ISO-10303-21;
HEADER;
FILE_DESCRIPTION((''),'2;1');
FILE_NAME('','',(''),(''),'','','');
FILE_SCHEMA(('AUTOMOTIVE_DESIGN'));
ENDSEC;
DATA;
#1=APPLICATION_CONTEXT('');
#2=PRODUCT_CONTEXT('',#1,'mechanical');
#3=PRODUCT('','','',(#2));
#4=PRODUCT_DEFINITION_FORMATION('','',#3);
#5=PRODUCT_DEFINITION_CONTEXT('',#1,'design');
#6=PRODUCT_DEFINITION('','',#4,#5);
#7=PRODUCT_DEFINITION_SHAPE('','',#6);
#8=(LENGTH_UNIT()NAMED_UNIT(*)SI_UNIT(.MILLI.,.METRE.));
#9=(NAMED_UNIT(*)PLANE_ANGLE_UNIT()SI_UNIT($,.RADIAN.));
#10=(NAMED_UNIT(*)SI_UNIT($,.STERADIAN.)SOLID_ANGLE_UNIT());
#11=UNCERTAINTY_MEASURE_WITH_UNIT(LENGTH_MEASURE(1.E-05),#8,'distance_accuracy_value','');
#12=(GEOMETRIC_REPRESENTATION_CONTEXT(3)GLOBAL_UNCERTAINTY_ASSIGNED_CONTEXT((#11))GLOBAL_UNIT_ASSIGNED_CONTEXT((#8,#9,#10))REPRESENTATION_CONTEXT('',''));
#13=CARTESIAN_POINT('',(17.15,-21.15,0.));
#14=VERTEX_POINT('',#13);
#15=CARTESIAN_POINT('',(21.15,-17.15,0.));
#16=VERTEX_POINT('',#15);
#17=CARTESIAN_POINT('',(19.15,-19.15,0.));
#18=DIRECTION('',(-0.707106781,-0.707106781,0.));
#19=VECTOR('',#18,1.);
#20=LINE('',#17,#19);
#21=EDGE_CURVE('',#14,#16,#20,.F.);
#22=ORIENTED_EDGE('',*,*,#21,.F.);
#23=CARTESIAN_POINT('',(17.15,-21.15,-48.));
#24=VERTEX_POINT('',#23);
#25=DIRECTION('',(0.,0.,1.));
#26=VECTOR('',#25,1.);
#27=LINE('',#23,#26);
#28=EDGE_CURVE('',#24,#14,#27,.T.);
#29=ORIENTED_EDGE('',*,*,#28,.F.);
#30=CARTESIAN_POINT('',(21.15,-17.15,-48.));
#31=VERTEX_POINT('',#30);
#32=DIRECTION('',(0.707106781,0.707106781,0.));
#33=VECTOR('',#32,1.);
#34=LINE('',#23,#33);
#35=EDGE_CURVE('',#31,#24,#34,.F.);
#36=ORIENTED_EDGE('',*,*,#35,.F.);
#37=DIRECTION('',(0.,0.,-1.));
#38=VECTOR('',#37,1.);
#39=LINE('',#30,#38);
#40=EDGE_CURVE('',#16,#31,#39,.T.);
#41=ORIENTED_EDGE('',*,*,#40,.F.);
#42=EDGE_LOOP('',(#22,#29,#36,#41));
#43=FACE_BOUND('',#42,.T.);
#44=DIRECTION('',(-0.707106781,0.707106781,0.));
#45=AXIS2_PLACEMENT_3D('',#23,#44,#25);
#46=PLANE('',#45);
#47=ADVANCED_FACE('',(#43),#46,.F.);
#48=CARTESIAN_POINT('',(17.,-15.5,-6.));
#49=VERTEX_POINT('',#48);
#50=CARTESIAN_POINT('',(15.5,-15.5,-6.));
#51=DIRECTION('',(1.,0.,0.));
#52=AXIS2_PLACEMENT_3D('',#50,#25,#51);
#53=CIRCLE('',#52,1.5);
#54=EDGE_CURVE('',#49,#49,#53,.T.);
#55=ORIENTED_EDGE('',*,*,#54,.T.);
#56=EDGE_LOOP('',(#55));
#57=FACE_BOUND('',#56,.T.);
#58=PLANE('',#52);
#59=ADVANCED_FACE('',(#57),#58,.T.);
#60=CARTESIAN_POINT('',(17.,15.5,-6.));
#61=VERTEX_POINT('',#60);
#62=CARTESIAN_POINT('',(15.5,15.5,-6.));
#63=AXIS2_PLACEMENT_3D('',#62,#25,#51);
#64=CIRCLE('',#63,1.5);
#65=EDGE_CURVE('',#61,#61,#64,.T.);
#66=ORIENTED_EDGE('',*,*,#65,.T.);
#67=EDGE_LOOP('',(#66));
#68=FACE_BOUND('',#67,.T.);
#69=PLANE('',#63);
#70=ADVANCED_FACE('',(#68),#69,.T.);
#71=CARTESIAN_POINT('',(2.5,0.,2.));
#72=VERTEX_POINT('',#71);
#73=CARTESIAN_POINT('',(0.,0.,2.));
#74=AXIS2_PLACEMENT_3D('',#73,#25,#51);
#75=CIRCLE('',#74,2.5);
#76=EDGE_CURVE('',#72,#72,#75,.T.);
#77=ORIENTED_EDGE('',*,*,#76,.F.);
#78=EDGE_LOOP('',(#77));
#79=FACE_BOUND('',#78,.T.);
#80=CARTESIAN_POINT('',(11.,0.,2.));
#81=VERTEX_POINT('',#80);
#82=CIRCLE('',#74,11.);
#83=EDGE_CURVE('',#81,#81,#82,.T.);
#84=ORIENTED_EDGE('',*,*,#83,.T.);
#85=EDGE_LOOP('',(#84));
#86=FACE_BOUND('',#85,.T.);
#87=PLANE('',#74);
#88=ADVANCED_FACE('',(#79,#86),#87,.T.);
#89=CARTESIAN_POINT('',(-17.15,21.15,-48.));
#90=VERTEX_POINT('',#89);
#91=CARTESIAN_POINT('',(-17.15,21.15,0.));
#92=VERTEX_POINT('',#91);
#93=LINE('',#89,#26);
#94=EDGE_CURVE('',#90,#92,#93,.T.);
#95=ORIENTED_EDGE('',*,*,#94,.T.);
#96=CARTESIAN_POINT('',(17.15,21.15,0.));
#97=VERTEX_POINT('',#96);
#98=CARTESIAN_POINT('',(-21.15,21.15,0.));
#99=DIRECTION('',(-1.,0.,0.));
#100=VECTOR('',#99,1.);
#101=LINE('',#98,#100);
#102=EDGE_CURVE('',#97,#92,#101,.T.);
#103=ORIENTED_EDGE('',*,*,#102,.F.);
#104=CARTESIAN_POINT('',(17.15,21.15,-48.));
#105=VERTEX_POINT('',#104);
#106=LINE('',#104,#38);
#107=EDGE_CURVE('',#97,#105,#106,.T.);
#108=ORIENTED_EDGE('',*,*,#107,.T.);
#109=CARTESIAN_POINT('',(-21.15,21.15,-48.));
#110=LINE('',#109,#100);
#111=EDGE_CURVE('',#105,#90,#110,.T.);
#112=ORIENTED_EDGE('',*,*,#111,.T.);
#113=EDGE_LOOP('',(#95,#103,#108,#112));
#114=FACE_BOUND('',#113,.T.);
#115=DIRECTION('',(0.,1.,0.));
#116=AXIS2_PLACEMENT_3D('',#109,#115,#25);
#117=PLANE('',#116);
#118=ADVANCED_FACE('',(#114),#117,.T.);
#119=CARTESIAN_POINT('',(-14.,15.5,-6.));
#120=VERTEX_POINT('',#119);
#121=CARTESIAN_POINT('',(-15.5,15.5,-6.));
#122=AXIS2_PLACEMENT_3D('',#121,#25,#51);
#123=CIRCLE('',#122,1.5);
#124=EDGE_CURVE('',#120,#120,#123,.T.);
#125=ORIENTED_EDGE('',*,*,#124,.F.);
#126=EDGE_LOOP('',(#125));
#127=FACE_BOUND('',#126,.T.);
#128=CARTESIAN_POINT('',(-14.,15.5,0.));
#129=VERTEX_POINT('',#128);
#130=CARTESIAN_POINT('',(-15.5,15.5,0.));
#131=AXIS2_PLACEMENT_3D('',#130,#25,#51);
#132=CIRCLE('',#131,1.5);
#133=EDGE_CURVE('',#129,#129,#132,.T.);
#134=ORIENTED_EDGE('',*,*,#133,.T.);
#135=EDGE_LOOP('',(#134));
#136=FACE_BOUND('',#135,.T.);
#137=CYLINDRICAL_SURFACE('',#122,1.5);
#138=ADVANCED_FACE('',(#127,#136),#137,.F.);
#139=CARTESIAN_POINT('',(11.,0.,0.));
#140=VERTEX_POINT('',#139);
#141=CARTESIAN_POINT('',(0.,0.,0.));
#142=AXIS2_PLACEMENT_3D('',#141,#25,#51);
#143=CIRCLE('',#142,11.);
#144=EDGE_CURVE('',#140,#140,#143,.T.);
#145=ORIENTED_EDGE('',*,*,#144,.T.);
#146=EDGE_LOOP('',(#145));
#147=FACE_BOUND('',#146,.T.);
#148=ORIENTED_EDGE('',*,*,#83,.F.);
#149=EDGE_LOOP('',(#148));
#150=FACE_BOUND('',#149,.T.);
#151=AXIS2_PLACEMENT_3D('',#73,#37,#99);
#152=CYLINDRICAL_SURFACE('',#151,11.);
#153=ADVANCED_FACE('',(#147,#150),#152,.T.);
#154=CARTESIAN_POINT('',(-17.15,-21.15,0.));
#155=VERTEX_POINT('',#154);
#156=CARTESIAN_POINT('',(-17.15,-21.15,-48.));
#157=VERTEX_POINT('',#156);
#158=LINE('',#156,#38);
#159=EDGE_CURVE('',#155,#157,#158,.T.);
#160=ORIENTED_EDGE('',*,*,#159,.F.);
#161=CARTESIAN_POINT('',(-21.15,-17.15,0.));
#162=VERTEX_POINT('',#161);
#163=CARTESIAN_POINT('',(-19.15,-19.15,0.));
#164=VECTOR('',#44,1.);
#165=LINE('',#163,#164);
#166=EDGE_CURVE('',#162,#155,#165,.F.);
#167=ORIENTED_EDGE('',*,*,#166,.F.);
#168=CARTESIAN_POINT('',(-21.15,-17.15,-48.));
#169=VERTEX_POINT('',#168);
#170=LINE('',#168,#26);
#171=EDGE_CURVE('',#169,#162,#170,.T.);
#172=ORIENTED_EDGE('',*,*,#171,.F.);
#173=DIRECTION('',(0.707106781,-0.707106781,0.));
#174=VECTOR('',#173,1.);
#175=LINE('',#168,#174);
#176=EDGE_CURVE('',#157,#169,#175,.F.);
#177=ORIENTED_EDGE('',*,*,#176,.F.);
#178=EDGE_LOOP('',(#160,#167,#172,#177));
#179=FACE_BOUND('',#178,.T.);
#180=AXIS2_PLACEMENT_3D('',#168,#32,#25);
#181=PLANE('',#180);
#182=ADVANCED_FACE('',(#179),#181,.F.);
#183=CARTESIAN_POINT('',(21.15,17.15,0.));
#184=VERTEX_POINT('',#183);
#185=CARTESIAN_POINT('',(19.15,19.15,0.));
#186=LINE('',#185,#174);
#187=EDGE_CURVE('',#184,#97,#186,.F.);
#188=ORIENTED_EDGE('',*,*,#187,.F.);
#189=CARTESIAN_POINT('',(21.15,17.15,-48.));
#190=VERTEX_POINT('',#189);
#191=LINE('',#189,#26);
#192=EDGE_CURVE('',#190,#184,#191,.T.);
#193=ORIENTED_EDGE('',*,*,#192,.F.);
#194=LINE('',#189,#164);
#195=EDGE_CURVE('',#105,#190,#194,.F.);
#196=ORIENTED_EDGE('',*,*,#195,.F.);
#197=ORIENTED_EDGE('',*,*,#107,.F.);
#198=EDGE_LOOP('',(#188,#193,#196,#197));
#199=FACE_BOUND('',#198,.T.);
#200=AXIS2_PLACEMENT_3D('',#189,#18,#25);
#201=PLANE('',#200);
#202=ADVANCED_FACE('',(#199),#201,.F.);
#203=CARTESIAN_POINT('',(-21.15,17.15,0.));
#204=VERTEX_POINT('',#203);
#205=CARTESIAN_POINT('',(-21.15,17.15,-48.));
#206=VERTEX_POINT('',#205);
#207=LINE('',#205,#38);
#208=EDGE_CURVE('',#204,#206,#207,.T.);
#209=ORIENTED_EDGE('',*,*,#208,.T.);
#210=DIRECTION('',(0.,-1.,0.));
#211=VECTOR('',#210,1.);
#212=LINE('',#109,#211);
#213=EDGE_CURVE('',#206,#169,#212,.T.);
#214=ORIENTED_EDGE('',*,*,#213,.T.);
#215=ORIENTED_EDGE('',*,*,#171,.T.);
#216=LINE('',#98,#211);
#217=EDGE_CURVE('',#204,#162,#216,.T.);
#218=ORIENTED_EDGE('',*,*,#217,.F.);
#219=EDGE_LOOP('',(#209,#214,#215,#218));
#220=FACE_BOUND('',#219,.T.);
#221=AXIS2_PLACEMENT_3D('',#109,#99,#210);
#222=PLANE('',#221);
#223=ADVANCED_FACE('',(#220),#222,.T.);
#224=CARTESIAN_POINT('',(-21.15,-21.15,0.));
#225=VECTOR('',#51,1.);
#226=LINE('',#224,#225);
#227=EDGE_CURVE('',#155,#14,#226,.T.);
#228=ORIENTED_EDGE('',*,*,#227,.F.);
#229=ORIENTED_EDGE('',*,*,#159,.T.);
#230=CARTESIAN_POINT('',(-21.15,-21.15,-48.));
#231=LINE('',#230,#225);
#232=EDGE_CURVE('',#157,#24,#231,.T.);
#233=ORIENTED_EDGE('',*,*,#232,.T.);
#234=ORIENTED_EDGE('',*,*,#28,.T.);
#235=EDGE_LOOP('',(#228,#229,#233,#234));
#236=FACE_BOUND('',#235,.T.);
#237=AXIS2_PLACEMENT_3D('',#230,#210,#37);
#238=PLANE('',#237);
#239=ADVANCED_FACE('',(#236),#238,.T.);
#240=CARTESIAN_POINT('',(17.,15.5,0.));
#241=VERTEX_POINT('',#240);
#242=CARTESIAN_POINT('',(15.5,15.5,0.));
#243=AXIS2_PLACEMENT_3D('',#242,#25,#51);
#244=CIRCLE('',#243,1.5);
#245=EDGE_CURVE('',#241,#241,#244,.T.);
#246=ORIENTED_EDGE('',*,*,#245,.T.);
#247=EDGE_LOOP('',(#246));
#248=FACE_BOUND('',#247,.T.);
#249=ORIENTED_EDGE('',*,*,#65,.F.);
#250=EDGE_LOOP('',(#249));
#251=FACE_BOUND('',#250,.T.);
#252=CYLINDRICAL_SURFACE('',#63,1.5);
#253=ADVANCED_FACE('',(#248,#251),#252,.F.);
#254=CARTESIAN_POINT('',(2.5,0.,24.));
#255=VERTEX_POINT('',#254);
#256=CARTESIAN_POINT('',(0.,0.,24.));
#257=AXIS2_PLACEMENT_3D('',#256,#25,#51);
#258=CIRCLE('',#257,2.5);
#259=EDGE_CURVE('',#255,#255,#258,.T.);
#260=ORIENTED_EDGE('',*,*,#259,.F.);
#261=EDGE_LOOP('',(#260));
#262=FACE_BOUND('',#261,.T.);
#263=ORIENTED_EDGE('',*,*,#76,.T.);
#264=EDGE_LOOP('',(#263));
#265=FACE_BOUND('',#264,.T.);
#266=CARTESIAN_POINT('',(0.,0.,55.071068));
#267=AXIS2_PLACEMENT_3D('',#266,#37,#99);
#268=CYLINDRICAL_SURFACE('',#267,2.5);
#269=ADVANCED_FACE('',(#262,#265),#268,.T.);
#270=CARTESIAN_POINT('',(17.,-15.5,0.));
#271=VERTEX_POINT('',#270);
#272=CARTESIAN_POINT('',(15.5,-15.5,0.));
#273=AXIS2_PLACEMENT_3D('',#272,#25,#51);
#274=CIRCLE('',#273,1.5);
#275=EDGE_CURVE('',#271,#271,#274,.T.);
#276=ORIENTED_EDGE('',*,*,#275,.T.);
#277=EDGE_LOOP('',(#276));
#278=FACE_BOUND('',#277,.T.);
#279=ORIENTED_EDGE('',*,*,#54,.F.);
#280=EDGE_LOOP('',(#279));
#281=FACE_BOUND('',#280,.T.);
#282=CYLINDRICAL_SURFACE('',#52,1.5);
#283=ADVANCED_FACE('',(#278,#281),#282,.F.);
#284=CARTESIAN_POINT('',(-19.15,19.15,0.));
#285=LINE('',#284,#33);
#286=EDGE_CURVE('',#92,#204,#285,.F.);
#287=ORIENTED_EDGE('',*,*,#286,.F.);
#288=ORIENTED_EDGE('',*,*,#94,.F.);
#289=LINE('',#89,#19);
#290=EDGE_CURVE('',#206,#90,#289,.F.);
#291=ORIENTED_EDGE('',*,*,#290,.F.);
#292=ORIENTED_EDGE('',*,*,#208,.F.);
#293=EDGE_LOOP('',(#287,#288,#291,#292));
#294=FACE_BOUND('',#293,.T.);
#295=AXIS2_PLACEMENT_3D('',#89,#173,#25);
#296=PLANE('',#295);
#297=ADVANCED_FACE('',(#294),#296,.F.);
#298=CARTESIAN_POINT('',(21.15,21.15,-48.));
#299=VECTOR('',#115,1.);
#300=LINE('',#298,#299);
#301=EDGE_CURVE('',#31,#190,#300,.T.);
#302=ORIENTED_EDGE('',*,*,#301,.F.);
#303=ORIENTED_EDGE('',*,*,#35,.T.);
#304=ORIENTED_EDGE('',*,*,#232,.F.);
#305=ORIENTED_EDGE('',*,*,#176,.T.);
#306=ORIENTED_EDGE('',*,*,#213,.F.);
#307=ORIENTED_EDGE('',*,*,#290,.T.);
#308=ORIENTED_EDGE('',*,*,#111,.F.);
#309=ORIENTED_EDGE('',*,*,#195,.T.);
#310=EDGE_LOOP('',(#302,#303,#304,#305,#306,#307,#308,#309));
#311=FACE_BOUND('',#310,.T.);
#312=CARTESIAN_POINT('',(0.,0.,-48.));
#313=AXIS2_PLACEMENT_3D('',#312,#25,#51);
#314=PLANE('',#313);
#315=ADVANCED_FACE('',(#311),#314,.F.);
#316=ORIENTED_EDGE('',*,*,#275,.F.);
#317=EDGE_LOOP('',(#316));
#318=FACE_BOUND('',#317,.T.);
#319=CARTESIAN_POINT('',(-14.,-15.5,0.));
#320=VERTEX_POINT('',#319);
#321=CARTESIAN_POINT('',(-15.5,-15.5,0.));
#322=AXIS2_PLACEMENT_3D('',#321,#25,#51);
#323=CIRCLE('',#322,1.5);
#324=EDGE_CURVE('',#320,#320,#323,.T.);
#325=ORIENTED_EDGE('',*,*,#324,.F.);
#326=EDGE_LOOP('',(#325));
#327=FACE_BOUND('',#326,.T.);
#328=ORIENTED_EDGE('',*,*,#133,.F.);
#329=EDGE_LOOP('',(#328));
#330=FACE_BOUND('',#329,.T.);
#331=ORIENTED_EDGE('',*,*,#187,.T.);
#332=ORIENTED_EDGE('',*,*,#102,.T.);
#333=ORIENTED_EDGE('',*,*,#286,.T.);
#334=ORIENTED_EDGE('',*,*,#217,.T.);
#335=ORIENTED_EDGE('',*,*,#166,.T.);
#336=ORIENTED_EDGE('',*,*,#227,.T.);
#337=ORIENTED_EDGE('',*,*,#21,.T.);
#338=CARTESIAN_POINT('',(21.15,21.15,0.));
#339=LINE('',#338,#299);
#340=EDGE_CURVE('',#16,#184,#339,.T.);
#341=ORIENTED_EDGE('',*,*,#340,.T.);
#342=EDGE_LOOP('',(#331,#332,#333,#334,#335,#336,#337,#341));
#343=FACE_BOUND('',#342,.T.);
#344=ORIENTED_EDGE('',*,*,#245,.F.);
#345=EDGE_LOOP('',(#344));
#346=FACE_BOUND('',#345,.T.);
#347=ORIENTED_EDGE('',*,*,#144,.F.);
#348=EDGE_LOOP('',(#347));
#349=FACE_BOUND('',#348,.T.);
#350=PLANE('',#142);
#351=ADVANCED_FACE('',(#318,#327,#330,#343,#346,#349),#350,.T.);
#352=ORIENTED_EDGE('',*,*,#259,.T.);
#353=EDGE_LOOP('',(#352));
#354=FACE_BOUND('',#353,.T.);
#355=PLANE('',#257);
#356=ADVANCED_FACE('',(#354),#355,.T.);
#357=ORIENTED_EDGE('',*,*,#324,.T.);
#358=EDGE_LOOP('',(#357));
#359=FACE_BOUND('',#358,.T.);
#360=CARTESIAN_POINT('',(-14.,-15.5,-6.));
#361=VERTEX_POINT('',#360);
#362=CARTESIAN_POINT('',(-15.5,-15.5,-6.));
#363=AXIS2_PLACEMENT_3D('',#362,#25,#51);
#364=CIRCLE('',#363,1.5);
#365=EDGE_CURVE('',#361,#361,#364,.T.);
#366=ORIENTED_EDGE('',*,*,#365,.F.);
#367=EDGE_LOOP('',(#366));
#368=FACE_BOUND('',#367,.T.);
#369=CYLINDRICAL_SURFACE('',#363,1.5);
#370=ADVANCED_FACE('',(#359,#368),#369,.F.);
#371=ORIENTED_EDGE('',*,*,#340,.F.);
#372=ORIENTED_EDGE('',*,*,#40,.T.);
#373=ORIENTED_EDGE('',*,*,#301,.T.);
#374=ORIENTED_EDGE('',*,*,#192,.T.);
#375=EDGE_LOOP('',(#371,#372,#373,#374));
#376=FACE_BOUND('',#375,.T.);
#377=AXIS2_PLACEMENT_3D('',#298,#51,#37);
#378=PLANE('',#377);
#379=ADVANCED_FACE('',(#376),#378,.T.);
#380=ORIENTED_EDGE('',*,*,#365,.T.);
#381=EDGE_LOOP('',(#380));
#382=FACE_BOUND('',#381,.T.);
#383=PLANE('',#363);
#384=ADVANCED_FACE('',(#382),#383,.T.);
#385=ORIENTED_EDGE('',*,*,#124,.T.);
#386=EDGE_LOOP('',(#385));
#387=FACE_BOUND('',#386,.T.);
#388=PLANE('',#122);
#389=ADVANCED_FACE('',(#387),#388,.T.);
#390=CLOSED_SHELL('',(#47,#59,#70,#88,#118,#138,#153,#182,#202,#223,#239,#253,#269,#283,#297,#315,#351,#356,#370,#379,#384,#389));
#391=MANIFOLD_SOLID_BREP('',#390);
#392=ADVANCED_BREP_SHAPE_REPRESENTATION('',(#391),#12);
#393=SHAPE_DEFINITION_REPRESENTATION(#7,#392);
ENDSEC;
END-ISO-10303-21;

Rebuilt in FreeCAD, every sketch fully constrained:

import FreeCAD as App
import Part
import Sketcher

V = App.Vector
Q = App.Units.Quantity


def edges_at(feature, points):
    """Names of the edges that pass closest to the given points."""
    edges = feature.Shape.Edges
    near = lambda p: min(range(len(edges)), key=lambda i: edges[i].distToShape(Part.Vertex(*p))[0])
    return sorted({f"Edge{near(p) + 1}" for p in points})

doc = App.newDocument("Part")
body = doc.addObject("PartDesign::Body", "Body")

sketch1 = body.newObject("Sketcher::SketchObject", "Sketch")
sketch1.AttachmentSupport = (doc.getObject("XY_Plane"), [""])
sketch1.MapMode = "FlatFace"
sketch1.addGeometry(Part.LineSegment(V(-21, 21, 0), V(-21, -21, 0)), False)
sketch1.addGeometry(Part.LineSegment(V(-21, -21, 0), V(21, -21, 0)), False)
sketch1.addGeometry(Part.LineSegment(V(21, -21, 0), V(21, 21, 0)), False)
sketch1.addGeometry(Part.LineSegment(V(21, 21, 0), V(-21, 21, 0)), False)
sketch1.addConstraint(Sketcher.Constraint("Coincident", 0, 2, 1, 1))
sketch1.addConstraint(Sketcher.Constraint("Coincident", 1, 2, 2, 1))
sketch1.addConstraint(Sketcher.Constraint("Coincident", 2, 2, 3, 1))
sketch1.addConstraint(Sketcher.Constraint("Coincident", 3, 2, 0, 1))
sketch1.addConstraint(Sketcher.Constraint("Vertical", 0))
sketch1.addConstraint(Sketcher.Constraint("Horizontal", 1))
sketch1.addConstraint(Sketcher.Constraint("Vertical", 2))
sketch1.addConstraint(Sketcher.Constraint("Horizontal", 3))
sketch1.addConstraint(Sketcher.Constraint("Symmetric", 0, 2, 2, 2, -1, 1))
sketch1.addConstraint(Sketcher.Constraint("Equal", 3, 0))
sketch1.addConstraint(Sketcher.Constraint("DistanceX", 1, 1, 1, 2, Q("42.3 mm")))
pad1 = body.newObject("PartDesign::Pad", "Pad")
pad1.Profile = sketch1
pad1.Length = 48
pad1.Reversed = True

sketch2 = body.newObject("Sketcher::SketchObject", "Sketch001")
sketch2.AttachmentSupport = (doc.getObject("XY_Plane"), [""])
sketch2.MapMode = "FlatFace"
sketch2.addGeometry(Part.Circle(V(-15.5, 15.5, 0), V(0, 0, 1), 1.5), False)
sketch2.addGeometry(Part.Circle(V(15.5, 15.5, 0), V(0, 0, 1), 1.5), False)
sketch2.addGeometry(Part.Circle(V(15.5, -15.5, 0), V(0, 0, 1), 1.5), False)
sketch2.addGeometry(Part.Circle(V(-15.5, -15.5, 0), V(0, 0, 1), 1.5), False)
sketch2.addConstraint(Sketcher.Constraint("Equal", 0, 1))
sketch2.addConstraint(Sketcher.Constraint("Equal", 1, 2))
sketch2.addConstraint(Sketcher.Constraint("Equal", 2, 3))
sketch2.addConstraint(Sketcher.Constraint("Symmetric", 0, 3, 2, 3, -1, 1))
sketch2.addConstraint(Sketcher.Constraint("Symmetric", 1, 3, 3, 3, -1, 1))
sketch2.addConstraint(Sketcher.Constraint("Symmetric", 0, 3, 1, 3, -2))
sketch2.addConstraint(Sketcher.Constraint("Diameter", 0, Q("3 mm")))
sketch2.addConstraint(Sketcher.Constraint("DistanceX", 0, 3, 1, 3, Q("31 mm")))
sketch2.addConstraint(Sketcher.Constraint("DistanceY", 2, 3, 1, 3, Q("31 mm")))
pocket1 = body.newObject("PartDesign::Pocket", "Pocket")
pocket1.Profile = sketch2
pocket1.Length = 6

sketch3 = body.newObject("Sketcher::SketchObject", "Sketch002")
sketch3.AttachmentSupport = (doc.getObject("XY_Plane"), [""])
sketch3.MapMode = "FlatFace"
sketch3.addGeometry(Part.Circle(V(0, 0, 0), V(0, 0, 1), 11), False)
sketch3.addConstraint(Sketcher.Constraint("Coincident", 0, 3, -1, 1))
sketch3.addConstraint(Sketcher.Constraint("Diameter", 0, Q("22 mm")))
pad2 = body.newObject("PartDesign::Pad", "Pad001")
pad2.Profile = sketch3
pad2.Length = 2

sketch4 = body.newObject("Sketcher::SketchObject", "Sketch003")
sketch4.AttachmentSupport = (doc.getObject("XY_Plane"), [""])
sketch4.MapMode = "FlatFace"
sketch4.AttachmentOffset = App.Placement(V(0, 0, 2), App.Rotation())
sketch4.addGeometry(Part.Circle(V(0, 0, 0), V(0, 0, 1), 2.5), False)
sketch4.addConstraint(Sketcher.Constraint("Coincident", 0, 3, -1, 1))
sketch4.addConstraint(Sketcher.Constraint("Diameter", 0, Q("5 mm")))
pad3 = body.newObject("PartDesign::Pad", "Pad002")
pad3.Profile = sketch4
pad3.Length = 22
doc.recompute()

chamfer = body.newObject("PartDesign::Chamfer", "Chamfer")
chamfer.Base = (pad3, edges_at(pad3, [
    (21.15, -21.15, -24),
    (-21.15, -21.15, -24),
    (-21.15, 21.15, -24),
    (21.15, 21.15, -24),
]))
chamfer.Size = 4

doc.recompute()
